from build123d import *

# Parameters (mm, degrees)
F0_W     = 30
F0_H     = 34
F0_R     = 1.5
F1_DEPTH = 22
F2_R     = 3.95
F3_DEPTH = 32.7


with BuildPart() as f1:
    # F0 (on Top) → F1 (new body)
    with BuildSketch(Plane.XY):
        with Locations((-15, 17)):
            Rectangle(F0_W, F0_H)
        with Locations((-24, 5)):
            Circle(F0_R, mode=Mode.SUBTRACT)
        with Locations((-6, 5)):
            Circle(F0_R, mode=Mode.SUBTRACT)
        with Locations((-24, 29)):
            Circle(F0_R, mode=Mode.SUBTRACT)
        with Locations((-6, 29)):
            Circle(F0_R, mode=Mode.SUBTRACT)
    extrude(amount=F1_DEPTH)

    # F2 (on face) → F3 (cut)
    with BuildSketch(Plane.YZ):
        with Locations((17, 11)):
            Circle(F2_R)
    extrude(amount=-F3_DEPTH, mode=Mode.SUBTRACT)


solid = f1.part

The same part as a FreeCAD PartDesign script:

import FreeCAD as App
import Part
import Sketcher
from FreeCAD import Vector

doc = App.newDocument("Part")
body = doc.addObject("PartDesign::Body", "Body")

# Sketch on XY plane
sketch1 = body.newObject("Sketcher::SketchObject", "Sketch")
sketch1.AttachmentSupport = (doc.getObject("XY_Plane"), [""])
sketch1.MapMode = "FlatFace"
sketch1.addGeometry([
    Part.LineSegment(Vector(-30, 34, 0), Vector(-30, 0, 0)),  # 0
    Part.LineSegment(Vector(-30, 0, 0), Vector(0, 0, 0)),  # 1
    Part.LineSegment(Vector(0, 0, 0), Vector(0, 34, 0)),  # 2
    Part.LineSegment(Vector(0, 34, 0), Vector(-30, 34, 0)),  # 3
    Part.Circle(Vector(-24, 5, 0), Vector(0, 0, 1), 1.5),  # 4
    Part.Circle(Vector(-6, 5, 0), Vector(0, 0, 1), 1.5),  # 5
    Part.Circle(Vector(-24, 29, 0), Vector(0, 0, 1), 1.5),  # 6
    Part.Circle(Vector(-6, 29, 0), Vector(0, 0, 1), 1.5),  # 7
], False)
sketch1.addConstraint([
    Sketcher.Constraint("Coincident", 0, 2, 1, 1),
    Sketcher.Constraint("Coincident", 1, 2, 2, 1),
    Sketcher.Constraint("Coincident", 2, 2, 3, 1),
    Sketcher.Constraint("Coincident", 3, 2, 0, 1),
    Sketcher.Constraint("Vertical", 0),
    Sketcher.Constraint("Horizontal", 1),
    Sketcher.Constraint("Vertical", 2),
    Sketcher.Constraint("Horizontal", 3),
    Sketcher.Constraint("Coincident", 1, 2, -1, 1),
    Sketcher.Constraint("Equal", 4, 5),
    Sketcher.Constraint("Equal", 5, 6),
    Sketcher.Constraint("Equal", 6, 7),
    Sketcher.Constraint("Horizontal", 4, 3, 5, 3),
    Sketcher.Constraint("Horizontal", 6, 3, 7, 3),
    Sketcher.Constraint("Vertical", 4, 3, 6, 3),
    Sketcher.Constraint("Vertical", 5, 3, 7, 3),
    Sketcher.Constraint("Diameter", 4, 3.0),
    Sketcher.Constraint("DistanceX", 1, 1, 1, 2, 30.0),
    Sketcher.Constraint("DistanceY", 0, 2, 0, 1, 34.0),
    Sketcher.Constraint("DistanceX", 4, 3, -1, 1, 24.0),
    Sketcher.Constraint("DistanceY", -1, 1, 4, 3, 5.0),
    Sketcher.Constraint("DistanceX", 5, 3, -1, 1, 6.0),
    Sketcher.Constraint("DistanceY", -1, 1, 6, 3, 29.0),
])
pad1 = body.newObject("PartDesign::Pad", "Pad")
pad1.Profile = sketch1
pad1.Length = 22

# Sketch on YZ plane
sketch2 = body.newObject("Sketcher::SketchObject", "Sketch001")
sketch2.AttachmentSupport = (doc.getObject("YZ_Plane"), [""])
sketch2.MapMode = "FlatFace"
sketch2.addGeometry(Part.Circle(Vector(17, 11, 0), Vector(0, 0, 1), 4), False)
sketch2.addConstraint([
    Sketcher.Constraint("Diameter", 0, 7.9),
    Sketcher.Constraint("DistanceX", -1, 1, 0, 3, 17.0),
    Sketcher.Constraint("DistanceY", -1, 1, 0, 3, 11.0),
])
pocket1 = body.newObject("PartDesign::Pocket", "Pocket")
pocket1.Profile = sketch2
pocket1.Length = 32.7

doc.recompute()
